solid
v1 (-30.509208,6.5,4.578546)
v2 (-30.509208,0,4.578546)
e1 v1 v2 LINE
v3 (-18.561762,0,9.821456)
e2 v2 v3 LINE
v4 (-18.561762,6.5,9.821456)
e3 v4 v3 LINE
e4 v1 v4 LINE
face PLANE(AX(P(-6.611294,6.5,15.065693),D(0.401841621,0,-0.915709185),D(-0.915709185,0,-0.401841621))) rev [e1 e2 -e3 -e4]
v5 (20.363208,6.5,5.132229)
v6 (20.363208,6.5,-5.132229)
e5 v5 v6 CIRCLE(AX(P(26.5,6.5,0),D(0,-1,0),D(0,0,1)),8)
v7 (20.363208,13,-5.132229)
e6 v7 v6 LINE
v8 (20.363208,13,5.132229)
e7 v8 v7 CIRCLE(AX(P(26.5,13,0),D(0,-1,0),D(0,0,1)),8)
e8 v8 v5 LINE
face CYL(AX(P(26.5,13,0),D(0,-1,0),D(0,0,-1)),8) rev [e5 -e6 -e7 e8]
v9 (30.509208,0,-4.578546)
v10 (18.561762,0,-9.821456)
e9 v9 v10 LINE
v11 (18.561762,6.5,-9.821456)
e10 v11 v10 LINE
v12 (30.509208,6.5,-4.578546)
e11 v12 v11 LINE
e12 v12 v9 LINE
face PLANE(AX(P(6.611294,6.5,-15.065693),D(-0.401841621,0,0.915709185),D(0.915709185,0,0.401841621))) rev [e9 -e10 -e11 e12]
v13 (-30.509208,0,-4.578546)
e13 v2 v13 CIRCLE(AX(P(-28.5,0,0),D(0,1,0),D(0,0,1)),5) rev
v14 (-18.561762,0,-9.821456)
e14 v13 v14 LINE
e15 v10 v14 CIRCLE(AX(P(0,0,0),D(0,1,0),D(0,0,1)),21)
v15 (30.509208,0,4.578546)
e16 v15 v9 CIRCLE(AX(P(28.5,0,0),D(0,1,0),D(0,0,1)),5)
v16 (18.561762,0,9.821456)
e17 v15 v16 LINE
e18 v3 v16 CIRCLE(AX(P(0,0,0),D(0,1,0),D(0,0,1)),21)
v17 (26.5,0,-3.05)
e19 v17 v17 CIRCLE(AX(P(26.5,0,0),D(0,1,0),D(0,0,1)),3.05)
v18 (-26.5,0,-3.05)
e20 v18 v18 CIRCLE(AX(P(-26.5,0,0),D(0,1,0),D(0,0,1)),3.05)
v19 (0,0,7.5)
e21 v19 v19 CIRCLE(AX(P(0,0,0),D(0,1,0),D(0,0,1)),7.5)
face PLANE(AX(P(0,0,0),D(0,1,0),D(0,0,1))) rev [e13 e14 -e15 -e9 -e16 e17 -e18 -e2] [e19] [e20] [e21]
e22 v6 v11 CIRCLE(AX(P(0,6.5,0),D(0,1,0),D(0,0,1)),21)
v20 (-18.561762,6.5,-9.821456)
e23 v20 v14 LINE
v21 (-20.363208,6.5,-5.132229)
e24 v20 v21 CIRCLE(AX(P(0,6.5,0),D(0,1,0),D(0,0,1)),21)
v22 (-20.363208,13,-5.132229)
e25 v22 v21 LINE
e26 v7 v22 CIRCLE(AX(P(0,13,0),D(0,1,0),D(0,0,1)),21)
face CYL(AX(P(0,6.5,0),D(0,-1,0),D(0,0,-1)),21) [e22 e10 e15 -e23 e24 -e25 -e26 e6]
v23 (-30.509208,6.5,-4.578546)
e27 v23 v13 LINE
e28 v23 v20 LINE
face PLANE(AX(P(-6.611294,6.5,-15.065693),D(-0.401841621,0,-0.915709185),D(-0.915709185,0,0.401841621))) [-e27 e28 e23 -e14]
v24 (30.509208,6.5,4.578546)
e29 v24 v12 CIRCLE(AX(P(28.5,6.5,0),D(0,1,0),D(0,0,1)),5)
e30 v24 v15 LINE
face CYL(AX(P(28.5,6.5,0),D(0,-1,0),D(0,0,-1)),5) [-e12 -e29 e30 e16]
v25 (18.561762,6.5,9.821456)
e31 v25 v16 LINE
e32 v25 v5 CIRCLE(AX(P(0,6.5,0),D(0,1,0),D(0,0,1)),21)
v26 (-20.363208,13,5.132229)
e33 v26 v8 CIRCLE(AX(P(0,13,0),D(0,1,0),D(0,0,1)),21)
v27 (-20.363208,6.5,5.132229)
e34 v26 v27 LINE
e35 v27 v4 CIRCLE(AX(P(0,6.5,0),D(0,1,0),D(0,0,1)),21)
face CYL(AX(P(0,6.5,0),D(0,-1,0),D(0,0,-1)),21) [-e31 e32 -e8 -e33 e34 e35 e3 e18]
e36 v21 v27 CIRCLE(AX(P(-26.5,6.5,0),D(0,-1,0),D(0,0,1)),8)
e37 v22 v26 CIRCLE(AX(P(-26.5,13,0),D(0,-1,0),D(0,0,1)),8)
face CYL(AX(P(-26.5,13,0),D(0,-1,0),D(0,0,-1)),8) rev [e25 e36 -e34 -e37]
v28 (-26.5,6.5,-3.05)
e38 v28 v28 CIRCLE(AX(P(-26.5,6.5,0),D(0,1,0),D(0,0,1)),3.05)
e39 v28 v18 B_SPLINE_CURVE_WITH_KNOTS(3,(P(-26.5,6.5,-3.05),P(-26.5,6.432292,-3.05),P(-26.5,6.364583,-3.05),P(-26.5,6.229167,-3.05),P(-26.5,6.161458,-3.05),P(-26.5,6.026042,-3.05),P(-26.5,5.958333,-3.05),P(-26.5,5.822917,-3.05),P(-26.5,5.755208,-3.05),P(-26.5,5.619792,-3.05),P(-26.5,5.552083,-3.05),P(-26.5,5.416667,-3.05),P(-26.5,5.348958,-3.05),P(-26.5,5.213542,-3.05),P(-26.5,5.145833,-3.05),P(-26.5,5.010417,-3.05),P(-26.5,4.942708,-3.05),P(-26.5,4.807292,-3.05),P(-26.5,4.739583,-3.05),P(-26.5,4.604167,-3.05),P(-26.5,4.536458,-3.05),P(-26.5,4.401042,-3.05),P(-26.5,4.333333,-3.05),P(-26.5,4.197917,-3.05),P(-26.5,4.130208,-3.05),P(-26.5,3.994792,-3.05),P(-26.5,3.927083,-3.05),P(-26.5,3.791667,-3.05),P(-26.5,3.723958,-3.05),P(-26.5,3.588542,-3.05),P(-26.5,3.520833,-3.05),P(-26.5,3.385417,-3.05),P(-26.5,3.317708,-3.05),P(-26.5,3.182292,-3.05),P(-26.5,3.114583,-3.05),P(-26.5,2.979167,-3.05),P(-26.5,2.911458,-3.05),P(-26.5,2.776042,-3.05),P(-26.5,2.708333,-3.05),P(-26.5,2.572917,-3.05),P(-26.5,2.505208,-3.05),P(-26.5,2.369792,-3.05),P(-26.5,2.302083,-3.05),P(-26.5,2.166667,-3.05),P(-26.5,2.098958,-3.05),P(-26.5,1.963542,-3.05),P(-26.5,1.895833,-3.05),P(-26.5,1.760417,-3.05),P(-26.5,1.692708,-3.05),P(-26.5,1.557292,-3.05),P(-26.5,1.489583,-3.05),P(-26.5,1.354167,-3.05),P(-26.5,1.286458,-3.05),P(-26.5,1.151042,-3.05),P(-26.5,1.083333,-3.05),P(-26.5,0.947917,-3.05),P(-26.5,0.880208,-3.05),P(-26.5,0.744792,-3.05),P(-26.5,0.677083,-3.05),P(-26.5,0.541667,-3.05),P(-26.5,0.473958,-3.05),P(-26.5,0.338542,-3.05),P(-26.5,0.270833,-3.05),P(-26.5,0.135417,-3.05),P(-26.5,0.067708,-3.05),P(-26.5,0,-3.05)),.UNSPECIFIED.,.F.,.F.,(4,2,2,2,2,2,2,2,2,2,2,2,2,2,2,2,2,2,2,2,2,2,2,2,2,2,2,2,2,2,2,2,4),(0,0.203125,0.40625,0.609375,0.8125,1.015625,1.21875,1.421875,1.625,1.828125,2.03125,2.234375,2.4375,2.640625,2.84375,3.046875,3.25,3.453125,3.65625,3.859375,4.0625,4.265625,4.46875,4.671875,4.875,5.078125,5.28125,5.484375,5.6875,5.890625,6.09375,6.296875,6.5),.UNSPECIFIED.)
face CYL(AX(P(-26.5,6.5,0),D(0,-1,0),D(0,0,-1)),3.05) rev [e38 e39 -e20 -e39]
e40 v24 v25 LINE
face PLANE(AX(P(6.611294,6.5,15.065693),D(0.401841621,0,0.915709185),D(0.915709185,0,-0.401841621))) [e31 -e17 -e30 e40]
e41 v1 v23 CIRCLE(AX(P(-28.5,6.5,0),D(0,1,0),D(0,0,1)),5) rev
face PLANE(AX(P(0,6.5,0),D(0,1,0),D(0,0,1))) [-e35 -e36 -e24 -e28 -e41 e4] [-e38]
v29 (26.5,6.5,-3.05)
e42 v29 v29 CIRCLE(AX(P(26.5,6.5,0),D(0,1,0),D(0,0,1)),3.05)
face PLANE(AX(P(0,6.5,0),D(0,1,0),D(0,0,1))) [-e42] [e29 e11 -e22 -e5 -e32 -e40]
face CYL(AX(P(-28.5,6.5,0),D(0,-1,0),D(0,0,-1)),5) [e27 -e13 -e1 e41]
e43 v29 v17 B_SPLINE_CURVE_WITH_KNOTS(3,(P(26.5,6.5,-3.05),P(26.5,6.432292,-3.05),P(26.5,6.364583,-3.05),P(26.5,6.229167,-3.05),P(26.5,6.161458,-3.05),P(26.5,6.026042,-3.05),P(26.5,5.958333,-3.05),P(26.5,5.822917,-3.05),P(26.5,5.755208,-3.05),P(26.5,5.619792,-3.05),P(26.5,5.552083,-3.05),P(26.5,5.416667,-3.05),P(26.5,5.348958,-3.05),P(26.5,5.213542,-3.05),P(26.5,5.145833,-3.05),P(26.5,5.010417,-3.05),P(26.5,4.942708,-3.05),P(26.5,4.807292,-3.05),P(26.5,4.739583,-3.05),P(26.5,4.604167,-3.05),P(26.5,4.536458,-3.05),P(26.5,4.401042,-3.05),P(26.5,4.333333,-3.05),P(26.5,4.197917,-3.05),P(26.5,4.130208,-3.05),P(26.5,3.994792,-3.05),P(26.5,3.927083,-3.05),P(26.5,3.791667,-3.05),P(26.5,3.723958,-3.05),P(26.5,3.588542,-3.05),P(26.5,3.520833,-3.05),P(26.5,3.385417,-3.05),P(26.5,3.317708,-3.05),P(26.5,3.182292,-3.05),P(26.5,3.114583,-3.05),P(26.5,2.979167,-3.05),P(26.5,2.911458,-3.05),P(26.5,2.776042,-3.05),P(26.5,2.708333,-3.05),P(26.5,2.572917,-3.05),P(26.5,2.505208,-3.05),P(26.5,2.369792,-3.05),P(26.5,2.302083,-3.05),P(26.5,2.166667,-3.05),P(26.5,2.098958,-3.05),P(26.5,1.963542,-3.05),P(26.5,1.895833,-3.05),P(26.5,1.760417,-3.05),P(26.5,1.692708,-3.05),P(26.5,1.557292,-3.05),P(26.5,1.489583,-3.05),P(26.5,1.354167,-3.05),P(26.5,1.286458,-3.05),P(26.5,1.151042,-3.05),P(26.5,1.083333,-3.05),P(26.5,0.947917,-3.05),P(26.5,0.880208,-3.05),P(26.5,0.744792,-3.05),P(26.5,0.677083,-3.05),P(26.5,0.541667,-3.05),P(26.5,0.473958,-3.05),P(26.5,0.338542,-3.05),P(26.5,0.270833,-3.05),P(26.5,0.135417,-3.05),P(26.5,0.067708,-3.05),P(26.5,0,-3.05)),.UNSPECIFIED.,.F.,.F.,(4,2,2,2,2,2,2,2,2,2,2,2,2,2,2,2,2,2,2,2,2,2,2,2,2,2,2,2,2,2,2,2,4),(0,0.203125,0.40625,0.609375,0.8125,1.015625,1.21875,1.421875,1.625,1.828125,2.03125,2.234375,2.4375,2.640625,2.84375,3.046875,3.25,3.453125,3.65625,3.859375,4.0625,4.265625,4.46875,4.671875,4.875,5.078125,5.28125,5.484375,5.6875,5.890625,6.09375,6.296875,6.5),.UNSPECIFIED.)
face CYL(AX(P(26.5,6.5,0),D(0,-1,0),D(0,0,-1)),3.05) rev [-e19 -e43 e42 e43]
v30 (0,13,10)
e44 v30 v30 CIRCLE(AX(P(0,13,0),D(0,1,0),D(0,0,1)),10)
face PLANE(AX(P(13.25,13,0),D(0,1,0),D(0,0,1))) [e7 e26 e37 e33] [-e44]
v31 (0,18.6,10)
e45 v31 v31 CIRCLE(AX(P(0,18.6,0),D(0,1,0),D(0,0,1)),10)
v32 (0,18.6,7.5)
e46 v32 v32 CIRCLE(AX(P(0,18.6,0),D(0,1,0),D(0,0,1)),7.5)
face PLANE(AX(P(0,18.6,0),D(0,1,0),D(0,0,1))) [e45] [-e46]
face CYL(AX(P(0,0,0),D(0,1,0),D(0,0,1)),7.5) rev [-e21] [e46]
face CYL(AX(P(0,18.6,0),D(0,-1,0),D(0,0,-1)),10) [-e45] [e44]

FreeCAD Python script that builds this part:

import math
import FreeCAD as App
import Part
import Sketcher

V = App.Vector

doc = App.newDocument("Part")
body = doc.addObject("PartDesign::Body", "Body")

sketch1 = body.newObject("Sketcher::SketchObject", "Sketch")
sketch1.AttachmentSupport = (doc.getObject("XZ_Plane"), [""])
sketch1.MapMode = "FlatFace"
sketch1.addGeometry([
    Part.ArcOfCircle(Part.Circle(V(0, 0, 0), V(0, 0, 1), 21), math.radians(28), math.radians(152)),
    Part.LineSegment(V(18.6, 9.8, 0), V(30.5, 4.6, 0)),
    Part.ArcOfCircle(Part.Circle(V(28.5, 0, 0), V(0, 0, 1), 5), math.radians(-66), math.radians(66)),
    Part.LineSegment(V(30.5, -4.6, 0), V(18.6, -9.8, 0)),
    Part.ArcOfCircle(Part.Circle(V(0, 0, 0), V(0, 0, 1), 21), math.radians(-152), math.radians(-28)),
    Part.LineSegment(V(-18.6, -9.8, 0), V(-30.5, -4.6, 0)),
    Part.ArcOfCircle(Part.Circle(V(-28.5, 0, 0), V(0, 0, 1), 5), math.radians(114), math.radians(246)),
    Part.LineSegment(V(-30.5, 4.6, 0), V(-18.6, 9.8, 0)),
    Part.Circle(V(-26.5, 0, 0), V(0, 0, 1), 3),
    Part.Circle(V(26.5, 0, 0), V(0, 0, 1), 3),
], False)
sketch1.addConstraint([
    Sketcher.Constraint("Coincident", 0, 1, 1, 1),
    Sketcher.Constraint("Tangent", 1, 2, 2, 2),
    Sketcher.Constraint("Tangent", 2, 1, 3, 1),
    Sketcher.Constraint("Coincident", 3, 2, 4, 2),
    Sketcher.Constraint("Coincident", 4, 1, 5, 1),
    Sketcher.Constraint("Tangent", 5, 2, 6, 2),
    Sketcher.Constraint("Tangent", 6, 1, 7, 1),
    Sketcher.Constraint("Coincident", 7, 2, 0, 2),
    Sketcher.Constraint("Coincident", 0, 3, -1, 1),
    Sketcher.Constraint("Coincident", 4, 3, -1, 1),
    Sketcher.Constraint("Equal", 0, 4),
    Sketcher.Constraint("Equal", 2, 6),
    Sketcher.Constraint("Equal", 8, 9),
    Sketcher.Constraint("Symmetric", 2, 3, 6, 3, -1, 1),
    Sketcher.Constraint("Symmetric", 8, 3, 9, 3, -1, 1),
    Sketcher.Constraint("Symmetric", 2, 1, 5, 2, -2),
    Sketcher.Constraint("PointOnObject", 8, 3, -1),
    Sketcher.Constraint("Parallel", 1, 5),
    Sketcher.Constraint("Parallel", 3, 7),
    Sketcher.Constraint("Radius", 0, 21.0),
    Sketcher.Constraint("Radius", 2, 5.0),
    Sketcher.Constraint("Diameter", 8, 6.1),
    Sketcher.Constraint("DistanceX", 6, 3, 2, 3, 57.0),
    Sketcher.Constraint("DistanceX", 6, 3, 8, 3, 2.0),
    Sketcher.Constraint("DistanceX", -1, 1, 0, 1, 18.561762),
])
pad1 = body.newObject("PartDesign::Pad", "Pad")
pad1.Profile = sketch1
pad1.Length = 6.5
pad1.Reversed = True

sketch2 = body.newObject("Sketcher::SketchObject", "Sketch001")
sketch2.AttachmentSupport = (doc.getObject("XZ_Plane"), [""])
sketch2.MapMode = "FlatFace"
sketch2.AttachmentOffset = App.Placement(V(0, 0, -6.5), App.Rotation())
sketch2.addGeometry([
    Part.ArcOfCircle(Part.Circle(V(0, 0, 0), V(0, 0, 1), 21), math.radians(-166), math.radians(-14)),
    Part.ArcOfCircle(Part.Circle(V(-26, 0, 0), V(0, 0, 1), 8), math.radians(-40), math.radians(40)),
    Part.ArcOfCircle(Part.Circle(V(0, 0, 0), V(0, 0, 1), 21), math.radians(14), math.radians(166)),
    Part.ArcOfCircle(Part.Circle(V(26, 0, 0), V(0, 0, 1), 8), math.radians(140), math.radians(220)),
], False)
sketch2.addConstraint([
    Sketcher.Constraint("Coincident", 0, 1, 1, 1),
    Sketcher.Constraint("Coincident", 1, 2, 2, 2),
    Sketcher.Constraint("Coincident", 2, 1, 3, 1),
    Sketcher.Constraint("Coincident", 3, 2, 0, 2),
    Sketcher.Constraint("Coincident", 0, 3, -1, 1),
    Sketcher.Constraint("Coincident", 2, 3, -1, 1),
    Sketcher.Constraint("Equal", 0, 2),
    Sketcher.Constraint("Equal", 1, 3),
    Sketcher.Constraint("Symmetric", 1, 3, 3, 3, -1, 1),
    Sketcher.Constraint("PointOnObject", 1, 3, -1),
    Sketcher.Constraint("Radius", 0, 21.0),
    Sketcher.Constraint("Radius", 1, 8.0),
    Sketcher.Constraint("DistanceX", 1, 3, 3, 3, 53.0),
])
pad2 = body.newObject("PartDesign::Pad", "Pad001")
pad2.Profile = sketch2
pad2.Length = 6.5
pad2.Reversed = True

sketch3 = body.newObject("Sketcher::SketchObject", "Sketch002")
sketch3.AttachmentSupport = (doc.getObject("XZ_Plane"), [""])
sketch3.MapMode = "FlatFace"
sketch3.AttachmentOffset = App.Placement(V(0, 0, -13), App.Rotation())
sketch3.addGeometry(Part.Circle(V(0, 0, 0), V(0, 0, 1), 10), False)
sketch3.addConstraint([
    Sketcher.Constraint("Coincident", 0, 3, -1, 1),
    Sketcher.Constraint("Diameter", 0, 20.0),
])
pad3 = body.newObject("PartDesign::Pad", "Pad002")
pad3.Profile = sketch3
pad3.Length = 5.6
pad3.Reversed = True

sketch4 = body.newObject("Sketcher::SketchObject", "Sketch003")
sketch4.AttachmentSupport = (doc.getObject("XZ_Plane"), [""])
sketch4.MapMode = "FlatFace"
sketch4.AttachmentOffset = App.Placement(V(0, 0, -18.6), App.Rotation())
sketch4.addGeometry(Part.Circle(V(0, 0, 0), V(0, 0, 1), 8), False)
sketch4.addConstraint([
    Sketcher.Constraint("Coincident", 0, 3, -1, 1),
    Sketcher.Constraint("Diameter", 0, 15.0),
])
pocket1 = body.newObject("PartDesign::Pocket", "Pocket")
pocket1.Profile = sketch4
pocket1.Type = "ThroughAll"
pocket1.Reversed = True

doc.recompute()
